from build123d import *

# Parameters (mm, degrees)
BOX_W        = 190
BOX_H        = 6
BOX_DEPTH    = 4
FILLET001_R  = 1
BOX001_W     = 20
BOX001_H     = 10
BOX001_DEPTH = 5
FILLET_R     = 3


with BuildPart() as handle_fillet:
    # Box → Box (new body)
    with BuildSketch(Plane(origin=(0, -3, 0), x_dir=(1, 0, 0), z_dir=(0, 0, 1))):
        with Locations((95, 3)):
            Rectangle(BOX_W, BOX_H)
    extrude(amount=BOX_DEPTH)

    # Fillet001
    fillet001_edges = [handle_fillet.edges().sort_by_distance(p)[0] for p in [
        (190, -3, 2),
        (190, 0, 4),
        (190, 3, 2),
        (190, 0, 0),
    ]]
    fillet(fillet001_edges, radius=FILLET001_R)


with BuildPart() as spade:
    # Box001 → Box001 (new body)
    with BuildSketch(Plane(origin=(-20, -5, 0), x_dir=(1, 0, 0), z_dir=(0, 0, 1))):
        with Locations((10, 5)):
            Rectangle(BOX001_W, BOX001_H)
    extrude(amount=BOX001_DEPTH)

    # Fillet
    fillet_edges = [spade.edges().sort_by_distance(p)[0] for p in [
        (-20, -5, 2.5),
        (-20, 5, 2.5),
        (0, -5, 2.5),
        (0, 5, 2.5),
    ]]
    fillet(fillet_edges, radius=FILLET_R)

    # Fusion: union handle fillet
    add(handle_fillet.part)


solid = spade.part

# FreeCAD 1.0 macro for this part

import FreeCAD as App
import Part
import Sketcher

V = App.Vector
Q = App.Units.Quantity


def edges_at(feature, points):
    """Names of the edges that pass closest to the given points."""
    edges = feature.Shape.Edges
    near = lambda p: min(range(len(edges)), key=lambda i: edges[i].distToShape(Part.Vertex(*p))[0])
    return sorted({f"Edge{near(p) + 1}" for p in points})


def add_polygon(sketch, points):
    """Adds a closed chain of lines whose ends are joined by coincident constraints."""
    first, n = sketch.GeometryCount, len(points)
    for a, b in zip(points, points[1:] + points[:1]):
        sketch.addGeometry(Part.LineSegment(App.Vector(*a, 0), App.Vector(*b, 0)), False)
    for i in range(n):
        sketch.addConstraint(Sketcher.Constraint("Coincident", first + i, 2, first + (i + 1) % n, 1))

doc = App.newDocument("Part")
body = doc.addObject("PartDesign::Body", "Body")

sketch1 = body.newObject("Sketcher::SketchObject", "Sketch")
sketch1.AttachmentSupport = (doc.getObject("XY_Plane"), [""])
sketch1.MapMode = "FlatFace"
add_polygon(sketch1, [(0, 3), (0, -3), (190, -3), (190, 3)])
sketch1.addConstraint(Sketcher.Constraint("Vertical", 0))
sketch1.addConstraint(Sketcher.Constraint("Horizontal", 1))
sketch1.addConstraint(Sketcher.Constraint("Vertical", 2))
sketch1.addConstraint(Sketcher.Constraint("Horizontal", 3))
sketch1.addConstraint(Sketcher.Constraint("Symmetric", 0, 2, 3, 2, -1, 1))
sketch1.addConstraint(Sketcher.Constraint("DistanceX", 1, 1, 1, 2, Q("190 mm")))
sketch1.addConstraint(Sketcher.Constraint("DistanceY", 0, 2, 0, 1, Q("6 mm")))
pad1 = body.newObject("PartDesign::Pad", "Pad")
pad1.Profile = sketch1
pad1.Length = 4
doc.recompute()

fillet = body.newObject("PartDesign::Fillet", "Fillet")
fillet.Base = (pad1, edges_at(pad1, [
    (190, -3, 2),
    (190, 0, 4),
    (190, 3, 2),
    (190, 0, 0),
]))
fillet.Radius = 1
body2 = doc.addObject("PartDesign::Body", "Body001")

sketch2 = body2.newObject("Sketcher::SketchObject", "Sketch001")
sketch2.AttachmentSupport = (doc.getObject("XY_Plane001"), [""])
sketch2.MapMode = "FlatFace"
add_polygon(sketch2, [(-20, 5), (-20, -5), (0, -5), (0, 5)])
sketch2.addConstraint(Sketcher.Constraint("Vertical", 0))
sketch2.addConstraint(Sketcher.Constraint("Horizontal", 1))
sketch2.addConstraint(Sketcher.Constraint("Vertical", 2))
sketch2.addConstraint(Sketcher.Constraint("Horizontal", 3))
sketch2.addConstraint(Sketcher.Constraint("Symmetric", 1, 2, 2, 2, -1, 1))
sketch2.addConstraint(Sketcher.Constraint("DistanceX", 1, 1, 1, 2, Q("20 mm")))
sketch2.addConstraint(Sketcher.Constraint("DistanceY", 0, 2, 0, 1, Q("10 mm")))
pad2 = body2.newObject("PartDesign::Pad", "Pad001")
pad2.Profile = sketch2
pad2.Length = 5
doc.recompute()

fillet2 = body2.newObject("PartDesign::Fillet", "Fillet001")
fillet2.Base = (pad2, edges_at(pad2, [
    (-20, -5, 2.5),
    (-20, 5, 2.5),
    (0, -5, 2.5),
    (0, 5, 2.5),
]))
fillet2.Radius = 3
doc.recompute()

boolean = body2.newObject("PartDesign::Boolean", "Boolean")
boolean.Type = "Fuse"
boolean.addObjects([body])

doc.recompute()
